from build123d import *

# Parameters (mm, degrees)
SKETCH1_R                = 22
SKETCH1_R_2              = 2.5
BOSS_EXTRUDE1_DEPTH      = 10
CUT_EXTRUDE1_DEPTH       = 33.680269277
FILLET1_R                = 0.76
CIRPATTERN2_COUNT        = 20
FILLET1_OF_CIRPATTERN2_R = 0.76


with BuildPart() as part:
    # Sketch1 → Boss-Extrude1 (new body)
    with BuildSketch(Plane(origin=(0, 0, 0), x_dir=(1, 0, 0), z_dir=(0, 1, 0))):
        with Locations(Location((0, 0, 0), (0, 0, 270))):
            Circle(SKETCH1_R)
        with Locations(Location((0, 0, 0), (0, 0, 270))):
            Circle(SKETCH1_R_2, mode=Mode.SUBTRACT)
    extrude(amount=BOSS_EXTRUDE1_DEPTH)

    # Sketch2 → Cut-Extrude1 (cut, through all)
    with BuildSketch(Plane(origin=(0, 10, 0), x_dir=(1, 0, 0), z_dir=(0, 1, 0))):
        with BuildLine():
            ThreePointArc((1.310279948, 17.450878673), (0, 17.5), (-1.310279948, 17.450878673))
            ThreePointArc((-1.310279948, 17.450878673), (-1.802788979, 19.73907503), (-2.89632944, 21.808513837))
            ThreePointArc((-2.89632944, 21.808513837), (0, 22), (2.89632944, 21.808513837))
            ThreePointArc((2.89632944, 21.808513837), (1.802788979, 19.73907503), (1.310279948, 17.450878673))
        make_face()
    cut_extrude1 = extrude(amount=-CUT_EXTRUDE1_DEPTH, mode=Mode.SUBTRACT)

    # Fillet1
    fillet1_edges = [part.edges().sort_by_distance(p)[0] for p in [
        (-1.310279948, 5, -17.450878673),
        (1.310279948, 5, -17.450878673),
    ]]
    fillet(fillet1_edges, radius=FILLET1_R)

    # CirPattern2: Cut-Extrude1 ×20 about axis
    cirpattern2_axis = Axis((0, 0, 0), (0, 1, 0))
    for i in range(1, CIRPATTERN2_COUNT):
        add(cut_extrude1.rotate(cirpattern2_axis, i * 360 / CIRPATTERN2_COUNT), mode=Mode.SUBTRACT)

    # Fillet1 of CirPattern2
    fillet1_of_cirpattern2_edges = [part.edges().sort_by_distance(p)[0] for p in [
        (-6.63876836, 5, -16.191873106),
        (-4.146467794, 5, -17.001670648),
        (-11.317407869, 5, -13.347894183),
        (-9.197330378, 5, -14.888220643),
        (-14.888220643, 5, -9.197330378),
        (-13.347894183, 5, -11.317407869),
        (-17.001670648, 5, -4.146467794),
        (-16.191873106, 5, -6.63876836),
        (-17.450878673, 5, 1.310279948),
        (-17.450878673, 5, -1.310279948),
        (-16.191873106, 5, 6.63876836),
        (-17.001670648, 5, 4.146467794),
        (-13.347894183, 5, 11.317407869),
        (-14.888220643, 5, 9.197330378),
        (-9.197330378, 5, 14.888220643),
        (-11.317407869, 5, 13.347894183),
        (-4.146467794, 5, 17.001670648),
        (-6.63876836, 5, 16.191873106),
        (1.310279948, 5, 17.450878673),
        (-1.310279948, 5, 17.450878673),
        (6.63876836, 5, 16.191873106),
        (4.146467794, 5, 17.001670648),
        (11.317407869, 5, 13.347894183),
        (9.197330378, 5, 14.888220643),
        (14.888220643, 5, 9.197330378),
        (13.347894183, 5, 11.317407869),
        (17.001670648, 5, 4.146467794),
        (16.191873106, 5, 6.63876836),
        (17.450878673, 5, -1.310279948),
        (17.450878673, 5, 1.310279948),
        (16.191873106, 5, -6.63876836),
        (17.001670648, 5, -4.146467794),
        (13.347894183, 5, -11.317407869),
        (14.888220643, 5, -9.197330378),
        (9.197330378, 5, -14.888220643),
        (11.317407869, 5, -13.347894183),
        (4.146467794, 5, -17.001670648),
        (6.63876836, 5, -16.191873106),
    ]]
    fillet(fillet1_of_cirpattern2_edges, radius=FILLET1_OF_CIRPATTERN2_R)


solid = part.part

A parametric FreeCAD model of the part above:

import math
import FreeCAD as App
import Part
import Sketcher
from FreeCAD import Vector
Q = App.Units.Quantity


def edges_at(feature, points):
    """Names of the edges that pass closest to the given points."""
    edges = feature.Shape.Edges
    near = lambda p: min(range(len(edges)), key=lambda i: edges[i].distToShape(Part.Vertex(*p))[0])
    return sorted({f"Edge{near(p) + 1}" for p in points})

doc = App.newDocument("Part")
body = doc.addObject("PartDesign::Body", "Body")

# Sketch on XZ plane
sketch1 = body.newObject("Sketcher::SketchObject", "Sketch")
sketch1.AttachmentSupport = (doc.getObject("XZ_Plane"), [""])
sketch1.MapMode = "FlatFace"
sketch1.addGeometry(Part.Circle(Vector(0, 0, 0), Vector(0, 0, 1), 22), False)
sketch1.addGeometry(Part.Circle(Vector(0, 0, 0), Vector(0, 0, 1), 2.5), False)
sketch1.addConstraint(Sketcher.Constraint("Coincident", 0, 3, -1, 1))
sketch1.addConstraint(Sketcher.Constraint("Coincident", 1, 3, -1, 1))
sketch1.addConstraint(Sketcher.Constraint("Diameter", 0, Q("44 mm")))
sketch1.addConstraint(Sketcher.Constraint("Diameter", 1, Q("5 mm")))
pad1 = body.newObject("PartDesign::Pad", "Pad")
pad1.Profile = sketch1
pad1.Length = 10
pad1.Reversed = True

# Sketch on XZ plane
sketch2 = body.newObject("Sketcher::SketchObject", "Sketch001")
sketch2.AttachmentSupport = (doc.getObject("XZ_Plane"), [""])
sketch2.MapMode = "FlatFace"
sketch2.AttachmentOffset = App.Placement(Vector(0, 0, -10), App.Rotation())
sketch2.addGeometry(Part.ArcOfCircle(Part.Circle(Vector(0, 0, 0), Vector(0, 0, 1), 17.5), math.radians(-94.293933), math.radians(-85.706067)), False)
sketch2.addGeometry(Part.ArcOfCircle(Part.Circle(Vector(9.851546, -16.809567, 0), Vector(0, 0, 1), 8.565308), math.radians(-175.706067), math.radians(-144.293933)), False)
sketch2.addGeometry(Part.ArcOfCircle(Part.Circle(Vector(0, 0, 0), Vector(0, 0, 1), 22), math.radians(-97.565027), math.radians(-82.434973)), False)
sketch2.addGeometry(Part.ArcOfCircle(Part.Circle(Vector(-9.851546, -16.809567, 0), Vector(0, 0, 1), 8.565308), math.radians(-35.706067), math.radians(-4.293933)), False)
sketch2.addConstraint(Sketcher.Constraint("Coincident", 0, 2, 1, 1))
sketch2.addConstraint(Sketcher.Constraint("Coincident", 1, 2, 2, 2))
sketch2.addConstraint(Sketcher.Constraint("Coincident", 2, 1, 3, 1))
sketch2.addConstraint(Sketcher.Constraint("Coincident", 3, 2, 0, 1))
sketch2.addConstraint(Sketcher.Constraint("Coincident", 0, 3, -1, 1))
sketch2.addConstraint(Sketcher.Constraint("Coincident", 2, 3, -1, 1))
sketch2.addConstraint(Sketcher.Constraint("Equal", 1, 3))
sketch2.addConstraint(Sketcher.Constraint("Symmetric", 1, 3, 3, 3, -2))
sketch2.addConstraint(Sketcher.Constraint("Radius", 2, Q("22 mm")))
sketch2.addConstraint(Sketcher.Constraint("Radius", 0, Q("17.5 mm")))
sketch2.addConstraint(Sketcher.Constraint("Radius", 1, Q("8.565308 mm")))
sketch2.addConstraint(Sketcher.Constraint("DistanceX", -1, 1, 0, 2, Q("1.31028 mm")))
sketch2.addConstraint(Sketcher.Constraint("DistanceX", -1, 1, 1, 2, Q("2.896329 mm")))
pocket1 = body.newObject("PartDesign::Pocket", "Pocket")
pocket1.Profile = sketch2
pocket1.Type = "ThroughAll"
pocket1.Reversed = True
doc.recompute()

fillet = body.newObject("PartDesign::Fillet", "Fillet")
fillet.Base = (pocket1, edges_at(pocket1, [(-1.31, 5, -17.451), (1.31, 5, -17.451)]))
fillet.Radius = 0.76
doc.recompute()

polarpattern = body.newObject("PartDesign::PolarPattern", "PolarPattern")
polarpattern.Originals = [pocket1]
polarpattern.Axis = (doc.getObject("Y_Axis"), [""])
polarpattern.Angle = 360
polarpattern.Occurrences = 20
body.Tip = polarpattern
doc.recompute()

fillet2 = body.newObject("PartDesign::Fillet", "Fillet001")
fillet2.Base = (polarpattern, edges_at(polarpattern, [
    (-6.639, 5, -16.192),
    (-4.146, 5, -17.002),
    (-11.317, 5, -13.348),
    (-9.197, 5, -14.888),
    (-14.888, 5, -9.197),
    (-13.348, 5, -11.317),
    (-17.002, 5, -4.146),
    (-16.192, 5, -6.639),
    (-17.451, 5, 1.31),
    (-17.451, 5, -1.31),
    (-16.192, 5, 6.639),
    (-17.002, 5, 4.146),
    (-13.348, 5, 11.317),
    (-14.888, 5, 9.197),
    (-9.197, 5, 14.888),
    (-11.317, 5, 13.348),
    (-4.146, 5, 17.002),
    (-6.639, 5, 16.192),
    (1.31, 5, 17.451),
    (-1.31, 5, 17.451),
    (6.639, 5, 16.192),
    (4.146, 5, 17.002),
    (11.317, 5, 13.348),
    (9.197, 5, 14.888),
    (14.888, 5, 9.197),
    (13.348, 5, 11.317),
    (17.002, 5, 4.146),
    (16.192, 5, 6.639),
    (17.451, 5, -1.31),
    (17.451, 5, 1.31),
    (16.192, 5, -6.639),
    (17.002, 5, -4.146),
    (13.348, 5, -11.317),
    (14.888, 5, -9.197),
    (9.197, 5, -14.888),
    (11.317, 5, -13.348),
    (4.146, 5, -17.002),
    (6.639, 5, -16.192),
]))
fillet2.Radius = 0.76

doc.recompute()
